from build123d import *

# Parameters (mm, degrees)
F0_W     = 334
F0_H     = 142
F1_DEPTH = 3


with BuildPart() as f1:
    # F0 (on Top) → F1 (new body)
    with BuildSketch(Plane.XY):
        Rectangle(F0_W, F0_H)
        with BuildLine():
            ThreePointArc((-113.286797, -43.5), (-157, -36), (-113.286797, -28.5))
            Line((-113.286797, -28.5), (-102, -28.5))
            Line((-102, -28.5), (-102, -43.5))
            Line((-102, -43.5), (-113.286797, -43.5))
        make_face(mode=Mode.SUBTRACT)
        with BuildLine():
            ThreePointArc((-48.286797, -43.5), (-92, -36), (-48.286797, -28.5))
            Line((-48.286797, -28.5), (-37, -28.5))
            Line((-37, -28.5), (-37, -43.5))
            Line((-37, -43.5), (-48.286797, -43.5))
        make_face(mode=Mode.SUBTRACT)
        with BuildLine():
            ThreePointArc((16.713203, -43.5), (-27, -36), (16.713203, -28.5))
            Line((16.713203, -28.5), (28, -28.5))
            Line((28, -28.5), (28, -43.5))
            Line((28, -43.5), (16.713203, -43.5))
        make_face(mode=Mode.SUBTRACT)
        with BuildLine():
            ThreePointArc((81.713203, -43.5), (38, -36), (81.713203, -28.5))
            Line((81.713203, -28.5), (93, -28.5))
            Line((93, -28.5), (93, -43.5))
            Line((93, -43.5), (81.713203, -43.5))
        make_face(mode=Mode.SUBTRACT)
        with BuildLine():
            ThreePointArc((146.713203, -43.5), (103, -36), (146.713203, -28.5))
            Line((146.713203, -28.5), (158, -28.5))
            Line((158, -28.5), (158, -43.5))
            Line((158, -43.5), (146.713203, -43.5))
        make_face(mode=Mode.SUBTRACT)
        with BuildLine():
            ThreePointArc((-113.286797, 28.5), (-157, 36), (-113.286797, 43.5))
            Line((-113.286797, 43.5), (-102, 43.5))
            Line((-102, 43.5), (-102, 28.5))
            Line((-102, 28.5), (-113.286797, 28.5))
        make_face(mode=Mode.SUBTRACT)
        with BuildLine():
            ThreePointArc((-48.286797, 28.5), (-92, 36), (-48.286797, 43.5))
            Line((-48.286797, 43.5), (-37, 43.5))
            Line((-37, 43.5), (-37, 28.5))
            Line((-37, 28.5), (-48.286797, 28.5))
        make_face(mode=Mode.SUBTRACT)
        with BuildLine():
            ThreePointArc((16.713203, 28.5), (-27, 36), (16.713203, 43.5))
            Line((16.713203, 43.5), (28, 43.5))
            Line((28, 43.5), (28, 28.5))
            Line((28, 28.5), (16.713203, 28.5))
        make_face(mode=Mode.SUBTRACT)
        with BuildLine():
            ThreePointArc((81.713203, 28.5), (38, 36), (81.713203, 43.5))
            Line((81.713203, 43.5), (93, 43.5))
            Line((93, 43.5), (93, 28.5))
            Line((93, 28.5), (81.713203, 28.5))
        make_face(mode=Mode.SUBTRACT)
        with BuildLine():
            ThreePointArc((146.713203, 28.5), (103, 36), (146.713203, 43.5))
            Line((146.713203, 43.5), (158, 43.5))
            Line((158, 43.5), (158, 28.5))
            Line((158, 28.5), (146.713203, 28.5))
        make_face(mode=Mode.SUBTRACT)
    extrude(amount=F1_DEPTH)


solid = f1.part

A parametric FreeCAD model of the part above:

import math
import FreeCAD as App
import Part
import Sketcher
Q = App.Units.Quantity

doc = App.newDocument("Part")
body = doc.addObject("PartDesign::Body", "Body")

sketch1 = body.newObject("Sketcher::SketchObject", "Sketch")
sketch1.AttachmentSupport = (doc.getObject("XY_Plane"), [""])
sketch1.MapMode = "FlatFace"
sketch1.addGeometry([
    Part.LineSegment(App.Vector(-167, 71, 0), App.Vector(-167, -71, 0)),
    Part.LineSegment(App.Vector(-167, -71, 0), App.Vector(167, -71, 0)),
    Part.LineSegment(App.Vector(167, -71, 0), App.Vector(167, 71, 0)),
    Part.LineSegment(App.Vector(167, 71, 0), App.Vector(-167, 71, 0)),
    Part.LineSegment(App.Vector(-102, -44, 0), App.Vector(-113, -44, 0)),
    Part.ArcOfCircle(Part.Circle(App.Vector(-135, -36, 0), App.Vector(0, 0, 1), 22), math.radians(19), math.radians(341)),
    Part.LineSegment(App.Vector(-113, -28, 0), App.Vector(-102, -28, 0)),
    Part.LineSegment(App.Vector(-102, -28, 0), App.Vector(-102, -44, 0)),
    Part.LineSegment(App.Vector(-37, -44, 0), App.Vector(-48, -44, 0)),
    Part.ArcOfCircle(Part.Circle(App.Vector(-70, -36, 0), App.Vector(0, 0, 1), 22), math.radians(19), math.radians(341)),
    Part.LineSegment(App.Vector(-48, -28, 0), App.Vector(-37, -28, 0)),
    Part.LineSegment(App.Vector(-37, -28, 0), App.Vector(-37, -44, 0)),
    Part.LineSegment(App.Vector(28, -44, 0), App.Vector(17, -44, 0)),
    Part.ArcOfCircle(Part.Circle(App.Vector(-5, -36, 0), App.Vector(0, 0, 1), 22), math.radians(19), math.radians(341)),
    Part.LineSegment(App.Vector(17, -28, 0), App.Vector(28, -28, 0)),
    Part.LineSegment(App.Vector(28, -28, 0), App.Vector(28, -44, 0)),
    Part.LineSegment(App.Vector(93, -44, 0), App.Vector(82, -44, 0)),
    Part.ArcOfCircle(Part.Circle(App.Vector(60, -36, 0), App.Vector(0, 0, 1), 22), math.radians(19), math.radians(341)),
    Part.LineSegment(App.Vector(82, -28, 0), App.Vector(93, -28, 0)),
    Part.LineSegment(App.Vector(93, -28, 0), App.Vector(93, -44, 0)),
    Part.LineSegment(App.Vector(158, -44, 0), App.Vector(147, -44, 0)),
    Part.ArcOfCircle(Part.Circle(App.Vector(125, -36, 0), App.Vector(0, 0, 1), 22), math.radians(19), math.radians(341)),
    Part.LineSegment(App.Vector(147, -28, 0), App.Vector(158, -28, 0)),
    Part.LineSegment(App.Vector(158, -28, 0), App.Vector(158, -44, 0)),
    Part.LineSegment(App.Vector(-102, 28, 0), App.Vector(-113, 28, 0)),
    Part.ArcOfCircle(Part.Circle(App.Vector(-135, 36, 0), App.Vector(0, 0, 1), 22), math.radians(19), math.radians(341)),
    Part.LineSegment(App.Vector(-113, 44, 0), App.Vector(-102, 44, 0)),
    Part.LineSegment(App.Vector(-102, 44, 0), App.Vector(-102, 28, 0)),
    Part.LineSegment(App.Vector(-37, 28, 0), App.Vector(-48, 28, 0)),
    Part.ArcOfCircle(Part.Circle(App.Vector(-70, 36, 0), App.Vector(0, 0, 1), 22), math.radians(19), math.radians(341)),
    Part.LineSegment(App.Vector(-48, 44, 0), App.Vector(-37, 44, 0)),
    Part.LineSegment(App.Vector(-37, 44, 0), App.Vector(-37, 28, 0)),
    Part.LineSegment(App.Vector(28, 28, 0), App.Vector(17, 28, 0)),
    Part.ArcOfCircle(Part.Circle(App.Vector(-5, 36, 0), App.Vector(0, 0, 1), 22), math.radians(19), math.radians(341)),
    Part.LineSegment(App.Vector(17, 44, 0), App.Vector(28, 44, 0)),
    Part.LineSegment(App.Vector(28, 44, 0), App.Vector(28, 28, 0)),
    Part.LineSegment(App.Vector(93, 28, 0), App.Vector(82, 28, 0)),
    Part.ArcOfCircle(Part.Circle(App.Vector(60, 36, 0), App.Vector(0, 0, 1), 22), math.radians(19), math.radians(341)),
    Part.LineSegment(App.Vector(82, 44, 0), App.Vector(93, 44, 0)),
    Part.LineSegment(App.Vector(93, 44, 0), App.Vector(93, 28, 0)),
    Part.LineSegment(App.Vector(158, 28, 0), App.Vector(147, 28, 0)),
    Part.ArcOfCircle(Part.Circle(App.Vector(125, 36, 0), App.Vector(0, 0, 1), 22), math.radians(19), math.radians(341)),
    Part.LineSegment(App.Vector(147, 44, 0), App.Vector(158, 44, 0)),
    Part.LineSegment(App.Vector(158, 44, 0), App.Vector(158, 28, 0)),
], False)
sketch1.addConstraint([
    Sketcher.Constraint("Coincident", 0, 2, 1, 1),
    Sketcher.Constraint("Coincident", 1, 2, 2, 1),
    Sketcher.Constraint("Coincident", 2, 2, 3, 1),
    Sketcher.Constraint("Coincident", 3, 2, 0, 1),
    Sketcher.Constraint("Coincident", 4, 2, 5, 2),
    Sketcher.Constraint("Coincident", 5, 1, 6, 1),
    Sketcher.Constraint("Coincident", 6, 2, 7, 1),
    Sketcher.Constraint("Coincident", 7, 2, 4, 1),
    Sketcher.Constraint("Coincident", 8, 2, 9, 2),
    Sketcher.Constraint("Coincident", 9, 1, 10, 1),
    Sketcher.Constraint("Coincident", 10, 2, 11, 1),
    Sketcher.Constraint("Coincident", 11, 2, 8, 1),
    Sketcher.Constraint("Coincident", 12, 2, 13, 2),
    Sketcher.Constraint("Coincident", 13, 1, 14, 1),
    Sketcher.Constraint("Coincident", 14, 2, 15, 1),
    Sketcher.Constraint("Coincident", 15, 2, 12, 1),
    Sketcher.Constraint("Coincident", 16, 2, 17, 2),
    Sketcher.Constraint("Coincident", 17, 1, 18, 1),
    Sketcher.Constraint("Coincident", 18, 2, 19, 1),
    Sketcher.Constraint("Coincident", 19, 2, 16, 1),
    Sketcher.Constraint("Coincident", 20, 2, 21, 2),
    Sketcher.Constraint("Coincident", 21, 1, 22, 1),
    Sketcher.Constraint("Coincident", 22, 2, 23, 1),
    Sketcher.Constraint("Coincident", 23, 2, 20, 1),
    Sketcher.Constraint("Coincident", 24, 2, 25, 2),
    Sketcher.Constraint("Coincident", 25, 1, 26, 1),
    Sketcher.Constraint("Coincident", 26, 2, 27, 1),
    Sketcher.Constraint("Coincident", 27, 2, 24, 1),
    Sketcher.Constraint("Coincident", 28, 2, 29, 2),
    Sketcher.Constraint("Coincident", 29, 1, 30, 1),
    Sketcher.Constraint("Coincident", 30, 2, 31, 1),
    Sketcher.Constraint("Coincident", 31, 2, 28, 1),
    Sketcher.Constraint("Coincident", 32, 2, 33, 2),
    Sketcher.Constraint("Coincident", 33, 1, 34, 1),
    Sketcher.Constraint("Coincident", 34, 2, 35, 1),
    Sketcher.Constraint("Coincident", 35, 2, 32, 1),
    Sketcher.Constraint("Coincident", 36, 2, 37, 2),
    Sketcher.Constraint("Coincident", 37, 1, 38, 1),
    Sketcher.Constraint("Coincident", 38, 2, 39, 1),
    Sketcher.Constraint("Coincident", 39, 2, 36, 1),
    Sketcher.Constraint("Coincident", 40, 2, 41, 2),
    Sketcher.Constraint("Coincident", 41, 1, 42, 1),
    Sketcher.Constraint("Coincident", 42, 2, 43, 1),
    Sketcher.Constraint("Coincident", 43, 2, 40, 1),
    Sketcher.Constraint("Vertical", 0),
    Sketcher.Constraint("Horizontal", 1),
    Sketcher.Constraint("Vertical", 2),
    Sketcher.Constraint("Horizontal", 3),
    Sketcher.Constraint("Horizontal", 4),
    Sketcher.Constraint("Horizontal", 6),
    Sketcher.Constraint("Vertical", 7),
    Sketcher.Constraint("Horizontal", 8),
    Sketcher.Constraint("Horizontal", 10),
    Sketcher.Constraint("Vertical", 11),
    Sketcher.Constraint("Horizontal", 12),
    Sketcher.Constraint("Horizontal", 14),
    Sketcher.Constraint("Vertical", 15),
    Sketcher.Constraint("Horizontal", 16),
    Sketcher.Constraint("Horizontal", 18),
    Sketcher.Constraint("Vertical", 19),
    Sketcher.Constraint("Horizontal", 20),
    Sketcher.Constraint("Horizontal", 22),
    Sketcher.Constraint("Vertical", 23),
    Sketcher.Constraint("Horizontal", 24),
    Sketcher.Constraint("Horizontal", 26),
    Sketcher.Constraint("Vertical", 27),
    Sketcher.Constraint("Horizontal", 28),
    Sketcher.Constraint("Horizontal", 30),
    Sketcher.Constraint("Vertical", 31),
    Sketcher.Constraint("Horizontal", 32),
    Sketcher.Constraint("Horizontal", 34),
    Sketcher.Constraint("Vertical", 35),
    Sketcher.Constraint("Horizontal", 36),
    Sketcher.Constraint("Horizontal", 38),
    Sketcher.Constraint("Vertical", 39),
    Sketcher.Constraint("Horizontal", 40),
    Sketcher.Constraint("Horizontal", 42),
    Sketcher.Constraint("Vertical", 43),
    Sketcher.Constraint("Equal", 5, 9),
    Sketcher.Constraint("Equal", 9, 13),
    Sketcher.Constraint("Equal", 13, 17),
    Sketcher.Constraint("Equal", 17, 21),
    Sketcher.Constraint("Equal", 21, 25),
    Sketcher.Constraint("Equal", 25, 29),
    Sketcher.Constraint("Equal", 29, 33),
    Sketcher.Constraint("Equal", 33, 37),
    Sketcher.Constraint("Equal", 37, 41),
    Sketcher.Constraint("Symmetric", 0, 2, 2, 2, -1, 1),
    Sketcher.Constraint("Symmetric", 5, 3, 25, 3, -1),
    Sketcher.Constraint("Symmetric", 9, 3, 29, 3, -1),
    Sketcher.Constraint("Symmetric", 13, 3, 33, 3, -1),
    Sketcher.Constraint("Symmetric", 17, 3, 37, 3, -1),
    Sketcher.Constraint("Symmetric", 21, 3, 41, 3, -1),
    Sketcher.Constraint("Symmetric", 7, 2, 26, 2, -1),
    Sketcher.Constraint("Symmetric", 11, 2, 30, 2, -1),
    Sketcher.Constraint("Symmetric", 15, 2, 34, 2, -1),
    Sketcher.Constraint("Symmetric", 19, 2, 38, 2, -1),
    Sketcher.Constraint("Symmetric", 23, 2, 42, 2, -1),
    Sketcher.Constraint("Horizontal", 5, 3, 9, 3),
    Sketcher.Constraint("Horizontal", 9, 3, 13, 3),
    Sketcher.Constraint("Horizontal", 13, 3, 17, 3),
    Sketcher.Constraint("Horizontal", 17, 3, 21, 3),
    Sketcher.Constraint("Horizontal", 7, 2, 8, 2),
    Sketcher.Constraint("Horizontal", 6, 2, 9, 1),
    Sketcher.Constraint("Horizontal", 11, 2, 12, 2),
    Sketcher.Constraint("Horizontal", 10, 2, 13, 1),
    Sketcher.Constraint("Horizontal", 15, 2, 16, 2),
    Sketcher.Constraint("Horizontal", 14, 2, 17, 1),
    Sketcher.Constraint("Horizontal", 19, 2, 20, 2),
    Sketcher.Constraint("Horizontal", 18, 2, 21, 1),
    Sketcher.Constraint("Horizontal", 27, 2, 28, 2),
    Sketcher.Constraint("Horizontal", 31, 2, 32, 2),
    Sketcher.Constraint("Horizontal", 35, 2, 36, 2),
    Sketcher.Constraint("Horizontal", 39, 2, 40, 2),
    Sketcher.Constraint("Vertical", 4, 2, 5, 1),
    Sketcher.Constraint("Vertical", 5, 1, 24, 2),
    Sketcher.Constraint("Equal", 6, 8),
    Sketcher.Constraint("Equal", 10, 12),
    Sketcher.Constraint("Equal", 14, 16),
    Sketcher.Constraint("Equal", 18, 20),
    Sketcher.Constraint("Radius", 5, Q("22.5 mm")),
    Sketcher.Constraint("DistanceX", 1, 1, 1, 2, Q("334 mm")),
    Sketcher.Constraint("DistanceY", 0, 2, 0, 1, Q("142 mm")),
    Sketcher.Constraint("DistanceY", 7, 2, 7, 1, Q("15 mm")),
    Sketcher.Constraint("DistanceY", 5, 3, -1, 1, Q("36 mm")),
    Sketcher.Constraint("DistanceX", 6, 2, -1, 1, Q("102 mm")),
    Sketcher.Constraint("DistanceX", 10, 2, -1, 1, Q("37 mm")),
    Sketcher.Constraint("DistanceX", -1, 1, 14, 2, Q("28 mm")),
    Sketcher.Constraint("DistanceX", -1, 1, 18, 2, Q("93 mm")),
    Sketcher.Constraint("DistanceX", -1, 1, 22, 2, Q("158 mm")),
    Sketcher.Constraint("DistanceX", 5, 3, -1, 1, Q("134.5 mm")),
])
pad1 = body.newObject("PartDesign::Pad", "Pad")
pad1.Profile = sketch1
pad1.Length = 3

doc.recompute()
